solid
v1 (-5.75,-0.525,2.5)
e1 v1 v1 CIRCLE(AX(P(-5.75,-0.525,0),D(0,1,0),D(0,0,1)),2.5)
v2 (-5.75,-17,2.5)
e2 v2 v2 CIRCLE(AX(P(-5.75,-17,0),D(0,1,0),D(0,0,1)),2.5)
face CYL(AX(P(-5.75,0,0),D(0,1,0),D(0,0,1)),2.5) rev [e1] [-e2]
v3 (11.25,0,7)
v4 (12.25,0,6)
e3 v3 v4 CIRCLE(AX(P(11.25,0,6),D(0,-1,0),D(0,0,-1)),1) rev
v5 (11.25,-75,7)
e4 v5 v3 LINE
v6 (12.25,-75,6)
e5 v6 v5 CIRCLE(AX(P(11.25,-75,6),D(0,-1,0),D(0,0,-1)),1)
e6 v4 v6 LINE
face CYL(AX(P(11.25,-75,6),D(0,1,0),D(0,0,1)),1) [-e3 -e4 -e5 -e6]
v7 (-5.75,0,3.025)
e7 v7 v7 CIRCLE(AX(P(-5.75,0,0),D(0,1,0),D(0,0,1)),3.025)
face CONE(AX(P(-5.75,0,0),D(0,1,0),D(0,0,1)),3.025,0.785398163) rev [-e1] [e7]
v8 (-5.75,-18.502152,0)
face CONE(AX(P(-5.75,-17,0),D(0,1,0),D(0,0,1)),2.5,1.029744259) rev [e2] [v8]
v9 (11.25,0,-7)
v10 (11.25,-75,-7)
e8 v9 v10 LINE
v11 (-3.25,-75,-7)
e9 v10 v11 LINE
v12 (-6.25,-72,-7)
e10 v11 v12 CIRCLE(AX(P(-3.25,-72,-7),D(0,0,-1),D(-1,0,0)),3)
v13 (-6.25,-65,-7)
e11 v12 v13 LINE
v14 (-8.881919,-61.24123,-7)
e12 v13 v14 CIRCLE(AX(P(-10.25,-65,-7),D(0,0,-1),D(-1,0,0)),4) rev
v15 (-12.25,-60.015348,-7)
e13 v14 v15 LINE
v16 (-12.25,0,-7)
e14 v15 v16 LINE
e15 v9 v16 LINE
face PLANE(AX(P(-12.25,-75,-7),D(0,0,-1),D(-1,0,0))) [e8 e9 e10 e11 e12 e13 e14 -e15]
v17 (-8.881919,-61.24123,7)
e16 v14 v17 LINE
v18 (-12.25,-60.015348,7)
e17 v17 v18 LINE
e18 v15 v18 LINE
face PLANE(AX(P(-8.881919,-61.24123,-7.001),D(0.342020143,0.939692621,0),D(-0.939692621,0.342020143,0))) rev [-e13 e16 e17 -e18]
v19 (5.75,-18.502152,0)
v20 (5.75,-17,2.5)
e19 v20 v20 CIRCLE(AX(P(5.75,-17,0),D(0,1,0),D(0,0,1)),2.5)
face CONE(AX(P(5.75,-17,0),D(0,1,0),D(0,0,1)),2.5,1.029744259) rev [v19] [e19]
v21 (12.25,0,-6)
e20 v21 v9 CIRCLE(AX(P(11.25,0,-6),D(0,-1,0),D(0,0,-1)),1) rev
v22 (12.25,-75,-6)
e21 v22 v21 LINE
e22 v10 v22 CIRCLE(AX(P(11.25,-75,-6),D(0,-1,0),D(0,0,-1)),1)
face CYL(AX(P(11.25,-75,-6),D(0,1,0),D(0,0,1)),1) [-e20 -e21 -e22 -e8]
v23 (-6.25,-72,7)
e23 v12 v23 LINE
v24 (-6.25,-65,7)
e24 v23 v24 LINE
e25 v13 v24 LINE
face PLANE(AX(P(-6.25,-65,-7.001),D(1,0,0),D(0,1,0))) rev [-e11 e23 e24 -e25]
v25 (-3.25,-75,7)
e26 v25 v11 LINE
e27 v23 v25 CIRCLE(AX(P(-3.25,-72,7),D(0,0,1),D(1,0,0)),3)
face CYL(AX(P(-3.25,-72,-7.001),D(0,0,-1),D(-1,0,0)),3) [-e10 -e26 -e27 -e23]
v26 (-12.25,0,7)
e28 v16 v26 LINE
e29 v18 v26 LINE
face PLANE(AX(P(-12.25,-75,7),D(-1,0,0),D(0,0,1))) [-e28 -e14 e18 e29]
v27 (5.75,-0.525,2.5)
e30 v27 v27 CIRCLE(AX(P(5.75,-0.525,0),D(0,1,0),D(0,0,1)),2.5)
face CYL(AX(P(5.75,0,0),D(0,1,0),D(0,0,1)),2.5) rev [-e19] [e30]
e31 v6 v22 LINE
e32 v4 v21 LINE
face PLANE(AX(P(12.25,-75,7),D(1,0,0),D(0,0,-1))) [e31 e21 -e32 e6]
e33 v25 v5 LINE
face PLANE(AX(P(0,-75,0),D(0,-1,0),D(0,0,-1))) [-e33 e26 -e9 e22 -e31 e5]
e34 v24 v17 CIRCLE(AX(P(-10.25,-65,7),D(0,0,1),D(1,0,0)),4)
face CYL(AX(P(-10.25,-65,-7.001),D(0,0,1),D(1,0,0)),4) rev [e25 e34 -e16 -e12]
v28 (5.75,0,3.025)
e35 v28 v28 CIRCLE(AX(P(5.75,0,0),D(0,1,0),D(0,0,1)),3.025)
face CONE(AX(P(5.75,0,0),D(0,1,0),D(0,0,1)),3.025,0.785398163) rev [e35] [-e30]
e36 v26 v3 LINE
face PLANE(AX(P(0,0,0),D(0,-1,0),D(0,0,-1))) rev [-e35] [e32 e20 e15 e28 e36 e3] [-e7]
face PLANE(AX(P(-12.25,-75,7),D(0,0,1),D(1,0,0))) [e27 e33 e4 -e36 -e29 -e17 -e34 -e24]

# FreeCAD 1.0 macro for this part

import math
import FreeCAD as App
import Part
import Sketcher
Q = App.Units.Quantity


def edges_at(feature, points):
    """Names of the edges that pass closest to the given points."""
    edges = feature.Shape.Edges
    near = lambda p: min(range(len(edges)), key=lambda i: edges[i].distToShape(Part.Vertex(*p))[0])
    return sorted({f"Edge{near(p) + 1}" for p in points})


def add_polygon(sketch, points):
    """Adds a closed chain of lines whose ends are joined by coincident constraints."""
    first, n = sketch.GeometryCount, len(points)
    for a, b in zip(points, points[1:] + points[:1]):
        sketch.addGeometry(Part.LineSegment(App.Vector(*a, 0), App.Vector(*b, 0)), False)
    for i in range(n):
        sketch.addConstraint(Sketcher.Constraint("Coincident", first + i, 2, first + (i + 1) % n, 1))

doc = App.newDocument("Part")
body = doc.addObject("PartDesign::Body", "Body")

# Sketch on XZ plane
sketch1 = body.newObject("Sketcher::SketchObject", "Sketch")
sketch1.AttachmentSupport = (doc.getObject("XZ_Plane"), [""])
sketch1.MapMode = "FlatFace"
add_polygon(sketch1, [(-12, -7), (-12, 7), (12, 7), (12, -7)])  # lines 0-3
sketch1.addConstraint(Sketcher.Constraint("Vertical", 0))
sketch1.addConstraint(Sketcher.Constraint("Horizontal", 1))
sketch1.addConstraint(Sketcher.Constraint("Vertical", 2))
sketch1.addConstraint(Sketcher.Constraint("Horizontal", 3))
sketch1.addConstraint(Sketcher.Constraint("Symmetric", 0, 2, 2, 2, -1, 1))
sketch1.addConstraint(Sketcher.Constraint("DistanceY", 0, 1, 0, 2, Q("14 mm")))
sketch1.addConstraint(Sketcher.Constraint("DistanceX", 1, 1, 1, 2, Q("24.5 mm")))
pad1 = body.newObject("PartDesign::Pad", "Pad")
pad1.Profile = sketch1
pad1.Length = 75

# Sketch on XY plane
sketch2 = body.newObject("Sketcher::SketchObject", "Sketch001")
sketch2.AttachmentSupport = (doc.getObject("XY_Plane"), [""])
sketch2.MapMode = "FlatFace"
sketch2.AttachmentOffset = App.Placement(App.Vector(0, 0, 7), App.Rotation())
sketch2.addGeometry(Part.LineSegment(App.Vector(-8.9, -61.2, 0), App.Vector(-12.2, -60, 0)), False)
sketch2.addGeometry(Part.LineSegment(App.Vector(-12.2, -60, 0), App.Vector(-12.2, -75, 0)), False)
sketch2.addGeometry(Part.LineSegment(App.Vector(-12.2, -75, 0), App.Vector(-6.2, -75, 0)), False)
sketch2.addGeometry(Part.LineSegment(App.Vector(-6.2, -75, 0), App.Vector(-6.2, -65, 0)), False)
sketch2.addGeometry(Part.ArcOfCircle(Part.Circle(App.Vector(-10.3, -65, 0), App.Vector(0, 0, 1), 4), math.radians(0), math.radians(70)), False)
sketch2.addConstraint(Sketcher.Constraint("Coincident", 0, 2, 1, 1))
sketch2.addConstraint(Sketcher.Constraint("Coincident", 1, 2, 2, 1))
sketch2.addConstraint(Sketcher.Constraint("Coincident", 2, 2, 3, 1))
sketch2.addConstraint(Sketcher.Constraint("Tangent", 3, 2, 4, 1))
sketch2.addConstraint(Sketcher.Constraint("Tangent", 4, 2, 0, 1))
sketch2.addConstraint(Sketcher.Constraint("Vertical", 1))
sketch2.addConstraint(Sketcher.Constraint("Horizontal", 2))
sketch2.addConstraint(Sketcher.Constraint("Vertical", 3))
sketch2.addConstraint(Sketcher.Constraint("Radius", 4, Q("4 mm")))
sketch2.addConstraint(Sketcher.Constraint("DistanceX", 2, 1, 2, 2, Q("6 mm")))
sketch2.addConstraint(Sketcher.Constraint("DistanceY", 3, 1, 3, 2, Q("10 mm")))
sketch2.addConstraint(Sketcher.Constraint("Angle", 0, Q("160 deg")))
sketch2.addConstraint(Sketcher.Constraint("DistanceY", 4, 3, -1, 1, Q("65 mm")))
sketch2.addConstraint(Sketcher.Constraint("DistanceX", 4, 3, -1, 1, Q("10.25 mm")))
pocket1 = body.newObject("PartDesign::Pocket", "Pocket")
pocket1.Profile = sketch2
pocket1.Type = "UpToFirst"
doc.recompute()

fillet = body.newObject("PartDesign::Fillet", "Fillet")
fillet.Base = (pocket1, edges_at(pocket1, [(-6.25, -75, 0)]))
fillet.Radius = 3
doc.recompute()

fillet2 = body.newObject("PartDesign::Fillet", "Fillet001")
fillet2.Base = (fillet, edges_at(fillet, [(12.25, -37.5, 7), (12.25, -37.5, -7)]))
fillet2.Radius = 1

# Sketch on XZ plane
sketch3 = body.newObject("Sketcher::SketchObject", "Sketch002")
sketch3.AttachmentSupport = (doc.getObject("XZ_Plane"), [""])
sketch3.MapMode = "FlatFace"
sketch3.addGeometry(Part.Circle(App.Vector(-5.8, 0, 0), App.Vector(0, 0, 1), 2.5), False)
sketch3.addGeometry(Part.Circle(App.Vector(5.8, 0, 0), App.Vector(0, 0, 1), 2.5), False)
sketch3.addConstraint(Sketcher.Constraint("Equal", 0, 1))
sketch3.addConstraint(Sketcher.Constraint("Symmetric", 0, 3, 1, 3, -1, 1))
sketch3.addConstraint(Sketcher.Constraint("PointOnObject", 0, 3, -1))
sketch3.addConstraint(Sketcher.Constraint("Diameter", 0, Q("5 mm")))
sketch3.addConstraint(Sketcher.Constraint("DistanceX", 0, 3, 1, 3, Q("11.5 mm")))
doc.recompute()
hole = body.newObject("PartDesign::Hole", "Hole")
hole.Profile = sketch3
hole.ThreadType = "None"
hole.Diameter = 5
hole.DepthType = "Dimension"
hole.Depth = 17
hole.DrillPoint = "Angled"
hole.DrillPointAngle = 118
hole.HoleCutType = "Countersink"
hole.HoleCutDiameter = 6.05
hole.HoleCutCountersinkAngle = 90
hole.Reversed = True

doc.recompute()
